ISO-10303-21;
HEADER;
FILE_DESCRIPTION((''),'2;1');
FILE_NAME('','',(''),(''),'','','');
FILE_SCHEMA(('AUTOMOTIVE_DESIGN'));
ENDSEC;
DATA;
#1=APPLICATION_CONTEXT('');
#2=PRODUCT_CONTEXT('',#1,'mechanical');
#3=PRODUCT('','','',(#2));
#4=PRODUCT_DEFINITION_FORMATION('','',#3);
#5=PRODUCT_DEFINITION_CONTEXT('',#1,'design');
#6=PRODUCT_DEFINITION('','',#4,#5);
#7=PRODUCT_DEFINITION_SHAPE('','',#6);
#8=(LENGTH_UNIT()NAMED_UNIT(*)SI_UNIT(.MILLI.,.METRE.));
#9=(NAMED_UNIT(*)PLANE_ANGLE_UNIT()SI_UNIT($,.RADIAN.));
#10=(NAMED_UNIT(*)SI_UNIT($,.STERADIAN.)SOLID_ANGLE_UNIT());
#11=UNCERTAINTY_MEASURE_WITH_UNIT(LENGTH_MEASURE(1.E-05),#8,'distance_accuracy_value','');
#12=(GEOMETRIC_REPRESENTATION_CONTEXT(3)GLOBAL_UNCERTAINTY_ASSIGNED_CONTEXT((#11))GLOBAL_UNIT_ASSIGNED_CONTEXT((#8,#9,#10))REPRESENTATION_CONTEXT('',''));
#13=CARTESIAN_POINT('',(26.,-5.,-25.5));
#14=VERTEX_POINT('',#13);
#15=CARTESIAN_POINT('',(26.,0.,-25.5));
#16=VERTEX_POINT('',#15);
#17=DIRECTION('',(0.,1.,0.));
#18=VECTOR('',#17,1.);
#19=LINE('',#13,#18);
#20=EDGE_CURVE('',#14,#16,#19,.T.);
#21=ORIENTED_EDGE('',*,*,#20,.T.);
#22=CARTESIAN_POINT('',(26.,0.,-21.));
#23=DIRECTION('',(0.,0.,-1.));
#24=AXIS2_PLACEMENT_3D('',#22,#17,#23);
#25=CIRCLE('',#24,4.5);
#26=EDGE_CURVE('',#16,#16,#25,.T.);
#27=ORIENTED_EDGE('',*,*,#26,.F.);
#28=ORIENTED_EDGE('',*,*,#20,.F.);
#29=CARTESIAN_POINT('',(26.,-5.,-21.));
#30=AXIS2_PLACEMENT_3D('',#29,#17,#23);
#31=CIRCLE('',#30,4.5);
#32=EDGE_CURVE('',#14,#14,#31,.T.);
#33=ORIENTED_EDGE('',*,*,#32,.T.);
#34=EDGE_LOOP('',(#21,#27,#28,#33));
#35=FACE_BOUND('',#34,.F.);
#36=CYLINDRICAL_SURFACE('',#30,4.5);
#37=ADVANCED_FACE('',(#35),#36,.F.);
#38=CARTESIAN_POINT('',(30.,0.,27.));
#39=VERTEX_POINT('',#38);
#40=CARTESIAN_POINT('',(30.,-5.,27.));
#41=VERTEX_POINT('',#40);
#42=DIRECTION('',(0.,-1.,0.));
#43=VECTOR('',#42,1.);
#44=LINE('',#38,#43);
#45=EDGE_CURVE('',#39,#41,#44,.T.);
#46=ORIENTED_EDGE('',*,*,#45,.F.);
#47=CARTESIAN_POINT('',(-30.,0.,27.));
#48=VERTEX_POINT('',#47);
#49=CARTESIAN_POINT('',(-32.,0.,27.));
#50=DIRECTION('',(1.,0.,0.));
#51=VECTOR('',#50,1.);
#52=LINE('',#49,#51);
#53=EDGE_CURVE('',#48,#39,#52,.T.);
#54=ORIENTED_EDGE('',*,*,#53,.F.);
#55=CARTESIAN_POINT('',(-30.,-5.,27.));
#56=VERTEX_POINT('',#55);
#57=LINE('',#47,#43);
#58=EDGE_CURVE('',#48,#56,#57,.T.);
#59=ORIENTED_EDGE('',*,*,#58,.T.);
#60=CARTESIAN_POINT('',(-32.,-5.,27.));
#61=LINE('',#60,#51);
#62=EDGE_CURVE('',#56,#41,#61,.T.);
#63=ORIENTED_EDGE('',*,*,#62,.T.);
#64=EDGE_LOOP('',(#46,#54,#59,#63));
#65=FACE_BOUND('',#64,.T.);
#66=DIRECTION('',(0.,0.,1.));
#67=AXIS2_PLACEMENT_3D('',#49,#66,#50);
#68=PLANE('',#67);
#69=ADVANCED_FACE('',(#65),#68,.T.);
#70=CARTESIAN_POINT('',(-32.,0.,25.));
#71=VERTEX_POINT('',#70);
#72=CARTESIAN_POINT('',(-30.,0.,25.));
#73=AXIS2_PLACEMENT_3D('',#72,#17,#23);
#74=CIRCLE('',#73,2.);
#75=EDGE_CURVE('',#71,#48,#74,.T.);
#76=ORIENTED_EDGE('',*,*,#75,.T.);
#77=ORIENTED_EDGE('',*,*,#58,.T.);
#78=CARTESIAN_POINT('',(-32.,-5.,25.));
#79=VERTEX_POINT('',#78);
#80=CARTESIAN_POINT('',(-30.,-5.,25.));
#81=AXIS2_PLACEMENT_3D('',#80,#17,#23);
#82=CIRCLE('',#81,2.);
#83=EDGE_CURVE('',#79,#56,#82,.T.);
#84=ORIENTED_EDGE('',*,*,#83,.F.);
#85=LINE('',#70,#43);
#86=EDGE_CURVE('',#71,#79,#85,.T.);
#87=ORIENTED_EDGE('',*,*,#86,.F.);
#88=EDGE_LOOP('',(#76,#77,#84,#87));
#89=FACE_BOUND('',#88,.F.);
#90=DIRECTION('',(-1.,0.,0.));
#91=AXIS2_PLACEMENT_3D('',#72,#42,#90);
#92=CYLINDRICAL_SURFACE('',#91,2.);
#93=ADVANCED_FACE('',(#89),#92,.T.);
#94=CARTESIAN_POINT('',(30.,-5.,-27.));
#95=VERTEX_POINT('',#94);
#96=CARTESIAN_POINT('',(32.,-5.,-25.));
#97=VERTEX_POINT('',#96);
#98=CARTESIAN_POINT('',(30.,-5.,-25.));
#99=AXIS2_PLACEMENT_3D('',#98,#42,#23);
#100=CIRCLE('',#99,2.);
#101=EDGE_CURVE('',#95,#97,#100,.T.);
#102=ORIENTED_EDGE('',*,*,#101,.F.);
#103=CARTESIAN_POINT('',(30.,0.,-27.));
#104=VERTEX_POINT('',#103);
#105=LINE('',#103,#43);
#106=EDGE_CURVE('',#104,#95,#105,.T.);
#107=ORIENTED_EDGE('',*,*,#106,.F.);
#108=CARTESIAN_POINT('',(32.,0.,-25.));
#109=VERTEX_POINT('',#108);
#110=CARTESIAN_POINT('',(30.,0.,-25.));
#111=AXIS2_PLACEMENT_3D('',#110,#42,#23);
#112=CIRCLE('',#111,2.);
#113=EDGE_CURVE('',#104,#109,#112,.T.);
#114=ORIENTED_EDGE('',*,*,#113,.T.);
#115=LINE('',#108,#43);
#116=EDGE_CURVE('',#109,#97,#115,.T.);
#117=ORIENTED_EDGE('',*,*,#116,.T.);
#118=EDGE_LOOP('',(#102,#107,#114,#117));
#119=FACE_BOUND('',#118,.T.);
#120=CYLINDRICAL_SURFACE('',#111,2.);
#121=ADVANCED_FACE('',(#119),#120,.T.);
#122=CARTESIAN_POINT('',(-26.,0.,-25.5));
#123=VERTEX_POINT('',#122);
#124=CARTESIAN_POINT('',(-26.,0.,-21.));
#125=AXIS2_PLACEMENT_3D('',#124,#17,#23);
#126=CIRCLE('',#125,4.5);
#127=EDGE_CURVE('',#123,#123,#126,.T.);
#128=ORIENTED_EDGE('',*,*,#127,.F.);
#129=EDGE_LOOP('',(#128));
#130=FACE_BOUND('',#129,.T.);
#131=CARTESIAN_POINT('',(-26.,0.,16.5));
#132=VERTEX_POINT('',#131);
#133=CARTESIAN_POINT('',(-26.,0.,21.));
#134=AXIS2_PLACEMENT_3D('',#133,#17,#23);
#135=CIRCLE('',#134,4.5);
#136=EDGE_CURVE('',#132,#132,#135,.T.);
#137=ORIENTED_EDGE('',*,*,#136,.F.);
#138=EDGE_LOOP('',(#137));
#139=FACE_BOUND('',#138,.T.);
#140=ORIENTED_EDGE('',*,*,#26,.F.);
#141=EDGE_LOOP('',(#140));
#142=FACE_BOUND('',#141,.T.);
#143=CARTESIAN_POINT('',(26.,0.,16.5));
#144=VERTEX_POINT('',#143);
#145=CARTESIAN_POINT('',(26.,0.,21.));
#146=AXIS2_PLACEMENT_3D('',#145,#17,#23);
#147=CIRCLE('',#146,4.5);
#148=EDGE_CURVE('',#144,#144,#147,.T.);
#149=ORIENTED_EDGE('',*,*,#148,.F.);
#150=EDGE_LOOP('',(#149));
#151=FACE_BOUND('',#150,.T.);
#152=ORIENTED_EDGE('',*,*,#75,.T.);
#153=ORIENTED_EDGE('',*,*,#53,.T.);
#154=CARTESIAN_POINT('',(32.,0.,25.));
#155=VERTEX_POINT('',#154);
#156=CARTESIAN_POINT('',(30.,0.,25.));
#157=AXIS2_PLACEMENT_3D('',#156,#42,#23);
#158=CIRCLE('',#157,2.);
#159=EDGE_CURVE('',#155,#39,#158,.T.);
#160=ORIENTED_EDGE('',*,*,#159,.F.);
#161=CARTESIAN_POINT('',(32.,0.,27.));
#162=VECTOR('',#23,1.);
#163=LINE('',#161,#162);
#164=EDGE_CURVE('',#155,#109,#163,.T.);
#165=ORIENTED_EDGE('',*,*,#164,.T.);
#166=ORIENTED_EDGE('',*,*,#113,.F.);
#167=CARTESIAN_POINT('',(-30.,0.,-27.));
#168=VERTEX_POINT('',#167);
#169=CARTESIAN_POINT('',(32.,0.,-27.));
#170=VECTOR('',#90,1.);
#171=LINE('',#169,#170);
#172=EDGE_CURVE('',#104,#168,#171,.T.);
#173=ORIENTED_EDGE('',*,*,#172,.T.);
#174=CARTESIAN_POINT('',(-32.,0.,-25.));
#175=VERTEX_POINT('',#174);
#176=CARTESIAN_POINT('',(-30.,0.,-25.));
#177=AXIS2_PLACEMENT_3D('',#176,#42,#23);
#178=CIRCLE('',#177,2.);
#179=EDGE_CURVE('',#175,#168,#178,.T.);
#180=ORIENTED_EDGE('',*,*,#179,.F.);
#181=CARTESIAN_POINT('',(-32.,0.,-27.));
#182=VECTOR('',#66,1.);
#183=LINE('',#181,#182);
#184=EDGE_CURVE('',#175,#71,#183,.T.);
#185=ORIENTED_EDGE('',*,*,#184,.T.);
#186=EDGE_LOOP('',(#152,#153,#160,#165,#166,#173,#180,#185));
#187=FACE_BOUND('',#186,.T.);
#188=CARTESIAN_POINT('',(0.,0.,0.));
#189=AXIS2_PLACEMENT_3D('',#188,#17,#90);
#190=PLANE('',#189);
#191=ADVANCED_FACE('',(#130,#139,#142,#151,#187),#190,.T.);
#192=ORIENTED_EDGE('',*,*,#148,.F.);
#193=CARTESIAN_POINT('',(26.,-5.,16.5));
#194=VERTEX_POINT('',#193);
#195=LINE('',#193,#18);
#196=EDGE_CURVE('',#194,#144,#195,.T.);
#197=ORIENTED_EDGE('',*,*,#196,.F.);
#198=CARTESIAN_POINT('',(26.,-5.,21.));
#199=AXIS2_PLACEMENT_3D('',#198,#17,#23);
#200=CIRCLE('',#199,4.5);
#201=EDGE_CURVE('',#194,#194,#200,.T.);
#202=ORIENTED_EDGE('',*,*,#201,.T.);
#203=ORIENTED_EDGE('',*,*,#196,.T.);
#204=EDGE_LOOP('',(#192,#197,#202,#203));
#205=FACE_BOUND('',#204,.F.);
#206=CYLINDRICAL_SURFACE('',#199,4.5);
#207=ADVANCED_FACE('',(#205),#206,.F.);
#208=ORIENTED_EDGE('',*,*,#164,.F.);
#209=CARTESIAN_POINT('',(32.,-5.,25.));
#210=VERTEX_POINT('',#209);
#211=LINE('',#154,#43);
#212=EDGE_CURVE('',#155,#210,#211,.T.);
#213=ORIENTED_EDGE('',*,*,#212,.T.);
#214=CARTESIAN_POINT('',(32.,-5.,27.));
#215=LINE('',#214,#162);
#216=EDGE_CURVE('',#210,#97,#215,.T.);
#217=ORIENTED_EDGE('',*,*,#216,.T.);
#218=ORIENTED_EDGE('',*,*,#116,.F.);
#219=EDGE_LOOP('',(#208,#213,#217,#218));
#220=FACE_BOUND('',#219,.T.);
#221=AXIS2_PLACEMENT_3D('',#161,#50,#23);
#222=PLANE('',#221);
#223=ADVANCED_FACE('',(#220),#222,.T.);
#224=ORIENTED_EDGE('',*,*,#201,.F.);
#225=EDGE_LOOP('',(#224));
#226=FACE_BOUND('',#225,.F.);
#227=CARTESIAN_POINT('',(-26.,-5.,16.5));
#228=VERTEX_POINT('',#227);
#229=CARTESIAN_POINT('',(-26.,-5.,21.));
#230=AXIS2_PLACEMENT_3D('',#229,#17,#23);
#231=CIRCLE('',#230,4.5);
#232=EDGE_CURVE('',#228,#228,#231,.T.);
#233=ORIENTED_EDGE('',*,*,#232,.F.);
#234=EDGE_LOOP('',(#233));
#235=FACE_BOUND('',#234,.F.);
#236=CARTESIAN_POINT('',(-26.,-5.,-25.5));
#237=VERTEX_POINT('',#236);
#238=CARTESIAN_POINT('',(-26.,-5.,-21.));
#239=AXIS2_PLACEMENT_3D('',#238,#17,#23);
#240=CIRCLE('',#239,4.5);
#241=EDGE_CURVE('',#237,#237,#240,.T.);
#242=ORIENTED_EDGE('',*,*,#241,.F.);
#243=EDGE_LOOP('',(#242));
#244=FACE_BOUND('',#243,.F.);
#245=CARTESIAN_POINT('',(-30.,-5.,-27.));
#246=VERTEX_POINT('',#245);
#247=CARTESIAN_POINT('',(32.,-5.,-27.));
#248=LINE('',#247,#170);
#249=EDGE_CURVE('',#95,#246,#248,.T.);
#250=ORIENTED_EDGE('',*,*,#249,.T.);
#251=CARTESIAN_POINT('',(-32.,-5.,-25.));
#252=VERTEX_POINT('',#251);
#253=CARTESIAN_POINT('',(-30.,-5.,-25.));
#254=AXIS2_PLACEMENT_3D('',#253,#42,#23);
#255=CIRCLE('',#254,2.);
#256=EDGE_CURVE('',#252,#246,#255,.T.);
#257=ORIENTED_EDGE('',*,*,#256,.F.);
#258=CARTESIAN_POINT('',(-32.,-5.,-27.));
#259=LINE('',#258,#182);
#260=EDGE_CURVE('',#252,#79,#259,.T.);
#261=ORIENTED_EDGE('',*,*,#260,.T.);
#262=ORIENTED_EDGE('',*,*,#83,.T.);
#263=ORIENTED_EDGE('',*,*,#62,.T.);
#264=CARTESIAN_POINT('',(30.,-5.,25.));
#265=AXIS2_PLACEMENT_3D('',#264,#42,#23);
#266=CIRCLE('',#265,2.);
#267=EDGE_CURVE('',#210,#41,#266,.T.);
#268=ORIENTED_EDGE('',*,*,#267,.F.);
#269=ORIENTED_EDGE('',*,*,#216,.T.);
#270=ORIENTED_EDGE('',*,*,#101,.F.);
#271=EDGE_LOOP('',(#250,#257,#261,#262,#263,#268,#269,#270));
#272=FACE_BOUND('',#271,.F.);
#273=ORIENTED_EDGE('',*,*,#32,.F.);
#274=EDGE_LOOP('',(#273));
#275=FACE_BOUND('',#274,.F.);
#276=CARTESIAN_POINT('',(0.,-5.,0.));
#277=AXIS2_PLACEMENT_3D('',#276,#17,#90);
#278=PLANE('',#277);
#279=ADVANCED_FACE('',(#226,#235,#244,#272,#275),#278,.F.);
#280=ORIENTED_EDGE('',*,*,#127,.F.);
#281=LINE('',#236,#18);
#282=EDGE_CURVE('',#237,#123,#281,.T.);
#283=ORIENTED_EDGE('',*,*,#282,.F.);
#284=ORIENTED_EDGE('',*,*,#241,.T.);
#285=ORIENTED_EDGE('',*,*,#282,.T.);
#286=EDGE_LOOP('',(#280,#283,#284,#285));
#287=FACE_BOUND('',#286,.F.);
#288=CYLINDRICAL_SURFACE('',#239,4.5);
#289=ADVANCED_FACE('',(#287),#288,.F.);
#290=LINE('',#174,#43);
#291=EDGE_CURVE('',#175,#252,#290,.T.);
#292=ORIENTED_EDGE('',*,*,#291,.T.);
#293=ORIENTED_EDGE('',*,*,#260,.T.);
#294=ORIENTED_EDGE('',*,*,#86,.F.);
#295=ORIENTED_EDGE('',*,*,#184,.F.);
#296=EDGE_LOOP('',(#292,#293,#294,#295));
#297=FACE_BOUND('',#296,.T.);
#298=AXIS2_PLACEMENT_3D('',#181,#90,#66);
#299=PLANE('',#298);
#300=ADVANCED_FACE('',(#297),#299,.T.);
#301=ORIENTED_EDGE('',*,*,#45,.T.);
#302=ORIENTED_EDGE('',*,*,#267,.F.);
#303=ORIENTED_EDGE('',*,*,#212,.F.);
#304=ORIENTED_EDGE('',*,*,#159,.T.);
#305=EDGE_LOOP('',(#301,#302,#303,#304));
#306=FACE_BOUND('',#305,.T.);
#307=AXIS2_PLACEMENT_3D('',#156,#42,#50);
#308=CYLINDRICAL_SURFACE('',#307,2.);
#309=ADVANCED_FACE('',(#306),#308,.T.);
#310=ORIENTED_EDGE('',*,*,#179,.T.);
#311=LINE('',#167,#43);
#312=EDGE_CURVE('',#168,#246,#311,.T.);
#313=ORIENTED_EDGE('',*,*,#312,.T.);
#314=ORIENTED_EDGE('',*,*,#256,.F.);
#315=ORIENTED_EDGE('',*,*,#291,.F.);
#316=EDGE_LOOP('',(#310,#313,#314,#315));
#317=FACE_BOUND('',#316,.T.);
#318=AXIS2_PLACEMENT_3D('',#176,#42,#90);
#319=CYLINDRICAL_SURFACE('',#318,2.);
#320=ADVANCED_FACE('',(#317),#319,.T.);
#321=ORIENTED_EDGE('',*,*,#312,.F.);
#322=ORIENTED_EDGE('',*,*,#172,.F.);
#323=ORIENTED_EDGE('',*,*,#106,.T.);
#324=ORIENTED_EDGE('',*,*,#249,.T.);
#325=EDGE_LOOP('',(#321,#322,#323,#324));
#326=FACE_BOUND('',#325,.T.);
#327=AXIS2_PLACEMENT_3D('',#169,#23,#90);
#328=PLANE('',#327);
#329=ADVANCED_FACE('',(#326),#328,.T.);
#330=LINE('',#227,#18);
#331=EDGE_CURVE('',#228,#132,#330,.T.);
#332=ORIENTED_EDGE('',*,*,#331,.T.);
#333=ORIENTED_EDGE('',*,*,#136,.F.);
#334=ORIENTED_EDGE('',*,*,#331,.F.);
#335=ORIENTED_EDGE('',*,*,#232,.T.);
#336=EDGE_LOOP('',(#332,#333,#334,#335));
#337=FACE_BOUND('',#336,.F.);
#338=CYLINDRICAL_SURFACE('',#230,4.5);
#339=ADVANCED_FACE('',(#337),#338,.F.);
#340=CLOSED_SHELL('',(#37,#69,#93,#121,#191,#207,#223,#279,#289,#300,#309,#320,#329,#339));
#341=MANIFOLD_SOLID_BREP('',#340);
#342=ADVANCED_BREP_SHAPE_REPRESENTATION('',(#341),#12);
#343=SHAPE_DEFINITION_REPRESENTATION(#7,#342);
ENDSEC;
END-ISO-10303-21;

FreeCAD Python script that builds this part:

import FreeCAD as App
import Part
import Sketcher

V = App.Vector


def edges_at(feature, points):
    """Names of the edges that pass closest to the given points."""
    edges = feature.Shape.Edges
    near = lambda p: min(range(len(edges)), key=lambda i: edges[i].distToShape(Part.Vertex(*p))[0])
    return sorted({f"Edge{near(p) + 1}" for p in points})


def add_polygon(sketch, points):
    """Adds a closed chain of lines whose ends are joined by coincident constraints."""
    first, n = sketch.GeometryCount, len(points)
    for a, b in zip(points, points[1:] + points[:1]):
        sketch.addGeometry(Part.LineSegment(App.Vector(*a, 0), App.Vector(*b, 0)), False)
    for i in range(n):
        sketch.addConstraint(Sketcher.Constraint("Coincident", first + i, 2, first + (i + 1) % n, 1))

doc = App.newDocument("Part")
body = doc.addObject("PartDesign::Body", "Body")

# Sketch on XZ plane
sketch1 = body.newObject("Sketcher::SketchObject", "Sketch")
sketch1.AttachmentSupport = (doc.getObject("XZ_Plane"), [""])
sketch1.MapMode = "FlatFace"
add_polygon(sketch1, [(-32, -27), (-32, 27), (32, 27), (32, -27)])  # lines 0-3
sketch1.addConstraint([
    Sketcher.Constraint("Vertical", 0),
    Sketcher.Constraint("Horizontal", 1),
    Sketcher.Constraint("Vertical", 2),
    Sketcher.Constraint("Horizontal", 3),
    Sketcher.Constraint("Symmetric", 0, 2, 2, 2, -1, 1),
    Sketcher.Constraint("DistanceX", 1, 1, 1, 2, 64.0),
    Sketcher.Constraint("DistanceY", 0, 1, 0, 2, 54.0),
])
pad1 = body.newObject("PartDesign::Pad", "Pad")
pad1.Profile = sketch1
pad1.Length = 5
doc.recompute()

fillet = body.newObject("PartDesign::Fillet", "Fillet")
fillet.Base = (pad1, edges_at(pad1, [
    (-32, -2.5, 27),
    (-32, -2.5, -27),
    (32, -2.5, 27),
    (32, -2.5, -27),
]))
fillet.Radius = 2

# Sketch on XZ plane
sketch2 = body.newObject("Sketcher::SketchObject", "Sketch001")
sketch2.AttachmentSupport = (doc.getObject("XZ_Plane"), [""])
sketch2.MapMode = "FlatFace"
sketch2.AttachmentOffset = App.Placement(V(0, 0, 5), App.Rotation())
sketch2.addGeometry([
    Part.Circle(V(-26, -21, 0), V(0, 0, 1), 4.5),
    Part.Circle(V(26, -21, 0), V(0, 0, 1), 4.5),
    Part.Circle(V(26, 21, 0), V(0, 0, 1), 4.5),
    Part.Circle(V(-26, 21, 0), V(0, 0, 1), 4.5),
], False)
sketch2.addConstraint([
    Sketcher.Constraint("Equal", 0, 1),
    Sketcher.Constraint("Equal", 1, 2),
    Sketcher.Constraint("Equal", 2, 3),
    Sketcher.Constraint("Symmetric", 0, 3, 2, 3, -1, 1),
    Sketcher.Constraint("Symmetric", 1, 3, 3, 3, -1, 1),
    Sketcher.Constraint("Symmetric", 0, 3, 1, 3, -2),
    Sketcher.Constraint("Diameter", 0, 9.0),
    Sketcher.Constraint("DistanceX", 0, 3, -1, 1, 26.0),
    Sketcher.Constraint("DistanceY", 0, 3, -1, 1, 21.0),
])
doc.recompute()
hole = body.newObject("PartDesign::Hole", "Hole")
hole.Profile = sketch2
hole.ThreadType = "None"
hole.Diameter = 9
hole.DepthType = "ThroughAll"

doc.recompute()
